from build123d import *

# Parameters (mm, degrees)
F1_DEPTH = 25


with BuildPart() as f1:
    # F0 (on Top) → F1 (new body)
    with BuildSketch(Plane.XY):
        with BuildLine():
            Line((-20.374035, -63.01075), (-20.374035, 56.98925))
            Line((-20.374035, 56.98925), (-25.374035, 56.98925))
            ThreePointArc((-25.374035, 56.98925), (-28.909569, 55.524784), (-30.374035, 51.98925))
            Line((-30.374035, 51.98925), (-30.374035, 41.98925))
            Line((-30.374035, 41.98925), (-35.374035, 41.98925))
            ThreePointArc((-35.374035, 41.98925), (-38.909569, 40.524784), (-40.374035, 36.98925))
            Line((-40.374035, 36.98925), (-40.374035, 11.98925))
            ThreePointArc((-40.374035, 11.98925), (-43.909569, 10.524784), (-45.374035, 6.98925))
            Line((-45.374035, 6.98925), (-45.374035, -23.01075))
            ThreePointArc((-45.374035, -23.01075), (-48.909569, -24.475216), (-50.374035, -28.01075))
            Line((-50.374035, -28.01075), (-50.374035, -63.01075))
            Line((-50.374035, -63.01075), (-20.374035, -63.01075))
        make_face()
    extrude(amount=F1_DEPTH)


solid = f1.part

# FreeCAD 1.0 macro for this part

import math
import FreeCAD as App
import Part
import Sketcher

V = App.Vector
Q = App.Units.Quantity

doc = App.newDocument("Part")
body = doc.addObject("PartDesign::Body", "Body")

# Sketch on XY plane
sketch1 = body.newObject("Sketcher::SketchObject", "Sketch")
sketch1.AttachmentSupport = (doc.getObject("XY_Plane"), [""])
sketch1.MapMode = "FlatFace"
sketch1.addGeometry(Part.LineSegment(V(-20.4, -63, 0), V(-20.4, 57, 0)), False)
sketch1.addGeometry(Part.LineSegment(V(-20.4, 57, 0), V(-25.4, 57, 0)), False)
sketch1.addGeometry(Part.ArcOfCircle(Part.Circle(V(-25.4, 52, 0), V(0, 0, 1), 5), math.radians(90), math.radians(180)), False)
sketch1.addGeometry(Part.LineSegment(V(-30.4, 52, 0), V(-30.4, 42, 0)), False)
sketch1.addGeometry(Part.LineSegment(V(-30.4, 42, 0), V(-35.4, 42, 0)), False)
sketch1.addGeometry(Part.ArcOfCircle(Part.Circle(V(-35.4, 37, 0), V(0, 0, 1), 5), math.radians(90), math.radians(180)), False)
sketch1.addGeometry(Part.LineSegment(V(-40.4, 37, 0), V(-40.4, 12, 0)), False)
sketch1.addGeometry(Part.ArcOfCircle(Part.Circle(V(-40.4, 7, 0), V(0, 0, 1), 5), math.radians(90), math.radians(180)), False)
sketch1.addGeometry(Part.LineSegment(V(-45.4, 7, 0), V(-45.4, -23, 0)), False)
sketch1.addGeometry(Part.ArcOfCircle(Part.Circle(V(-45.4, -28, 0), V(0, 0, 1), 5), math.radians(90), math.radians(180)), False)
sketch1.addGeometry(Part.LineSegment(V(-50.4, -28, 0), V(-50.4, -63, 0)), False)
sketch1.addGeometry(Part.LineSegment(V(-50.4, -63, 0), V(-20.4, -63, 0)), False)
sketch1.addConstraint(Sketcher.Constraint("Coincident", 0, 2, 1, 1))
sketch1.addConstraint(Sketcher.Constraint("Tangent", 1, 2, 2, 1))
sketch1.addConstraint(Sketcher.Constraint("Tangent", 2, 2, 3, 1))
sketch1.addConstraint(Sketcher.Constraint("Coincident", 3, 2, 4, 1))
sketch1.addConstraint(Sketcher.Constraint("Tangent", 4, 2, 5, 1))
sketch1.addConstraint(Sketcher.Constraint("Tangent", 5, 2, 6, 1))
sketch1.addConstraint(Sketcher.Constraint("Coincident", 6, 2, 7, 1))
sketch1.addConstraint(Sketcher.Constraint("Tangent", 7, 2, 8, 1))
sketch1.addConstraint(Sketcher.Constraint("Coincident", 8, 2, 9, 1))
sketch1.addConstraint(Sketcher.Constraint("Tangent", 9, 2, 10, 1))
sketch1.addConstraint(Sketcher.Constraint("Coincident", 10, 2, 11, 1))
sketch1.addConstraint(Sketcher.Constraint("Coincident", 11, 2, 0, 1))
sketch1.addConstraint(Sketcher.Constraint("Vertical", 0))
sketch1.addConstraint(Sketcher.Constraint("Horizontal", 1))
sketch1.addConstraint(Sketcher.Constraint("Vertical", 3))
sketch1.addConstraint(Sketcher.Constraint("Horizontal", 4))
sketch1.addConstraint(Sketcher.Constraint("Vertical", 6))
sketch1.addConstraint(Sketcher.Constraint("Vertical", 8))
sketch1.addConstraint(Sketcher.Constraint("Vertical", 10))
sketch1.addConstraint(Sketcher.Constraint("Horizontal", 11))
sketch1.addConstraint(Sketcher.Constraint("Equal", 2, 5))
sketch1.addConstraint(Sketcher.Constraint("Equal", 5, 7))
sketch1.addConstraint(Sketcher.Constraint("Equal", 7, 9))
sketch1.addConstraint(Sketcher.Constraint("Vertical", 7, 3, 5, 2))
sketch1.addConstraint(Sketcher.Constraint("Vertical", 9, 3, 7, 2))
sketch1.addConstraint(Sketcher.Constraint("Equal", 1, 4))
sketch1.addConstraint(Sketcher.Constraint("Equal", 11, 8))
sketch1.addConstraint(Sketcher.Constraint("Radius", 2, Q("5 mm")))
sketch1.addConstraint(Sketcher.Constraint("DistanceX", 1, 2, 1, 1, Q("5 mm")))
sketch1.addConstraint(Sketcher.Constraint("DistanceY", 0, 1, 0, 2, Q("120 mm")))
sketch1.addConstraint(Sketcher.Constraint("DistanceY", 3, 2, 3, 1, Q("10 mm")))
sketch1.addConstraint(Sketcher.Constraint("DistanceY", 6, 2, 6, 1, Q("25 mm")))
sketch1.addConstraint(Sketcher.Constraint("DistanceY", -1, 1, 2, 3, Q("51.98925 mm")))
sketch1.addConstraint(Sketcher.Constraint("DistanceX", 2, 3, -1, 1, Q("25.374035 mm")))
pad1 = body.newObject("PartDesign::Pad", "Pad")
pad1.Profile = sketch1
pad1.Length = 25

doc.recompute()
